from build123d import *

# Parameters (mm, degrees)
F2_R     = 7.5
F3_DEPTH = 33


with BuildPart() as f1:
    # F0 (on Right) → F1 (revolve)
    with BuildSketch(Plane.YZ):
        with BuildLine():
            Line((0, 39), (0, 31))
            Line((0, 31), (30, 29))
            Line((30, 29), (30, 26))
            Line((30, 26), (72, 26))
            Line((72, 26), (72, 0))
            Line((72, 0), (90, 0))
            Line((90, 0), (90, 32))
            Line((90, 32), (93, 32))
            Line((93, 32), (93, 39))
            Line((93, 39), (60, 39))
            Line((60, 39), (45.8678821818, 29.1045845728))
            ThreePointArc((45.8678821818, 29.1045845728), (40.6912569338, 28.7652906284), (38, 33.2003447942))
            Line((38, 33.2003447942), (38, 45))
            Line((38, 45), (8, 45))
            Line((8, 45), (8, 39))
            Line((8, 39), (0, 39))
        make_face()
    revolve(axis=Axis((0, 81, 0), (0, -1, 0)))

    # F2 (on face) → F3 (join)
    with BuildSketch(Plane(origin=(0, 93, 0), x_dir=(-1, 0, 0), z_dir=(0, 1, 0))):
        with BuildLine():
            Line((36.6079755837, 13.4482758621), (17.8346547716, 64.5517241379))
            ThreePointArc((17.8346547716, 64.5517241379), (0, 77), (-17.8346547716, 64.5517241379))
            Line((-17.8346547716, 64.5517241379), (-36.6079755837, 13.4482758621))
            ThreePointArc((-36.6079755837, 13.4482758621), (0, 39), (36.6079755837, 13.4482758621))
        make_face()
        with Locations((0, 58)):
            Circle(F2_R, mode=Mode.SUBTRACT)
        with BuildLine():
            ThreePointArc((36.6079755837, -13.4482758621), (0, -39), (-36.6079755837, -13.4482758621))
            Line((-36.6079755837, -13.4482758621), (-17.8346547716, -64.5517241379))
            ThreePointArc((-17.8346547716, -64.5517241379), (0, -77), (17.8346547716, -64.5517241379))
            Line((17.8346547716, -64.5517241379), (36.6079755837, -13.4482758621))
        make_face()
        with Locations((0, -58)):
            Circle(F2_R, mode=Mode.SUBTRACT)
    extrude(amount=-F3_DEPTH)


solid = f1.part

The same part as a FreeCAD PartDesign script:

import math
import FreeCAD as App
import Part
import Sketcher

V = App.Vector
Q = App.Units.Quantity

doc = App.newDocument("Part")
params = doc.addObject("Spreadsheet::Sheet", "Params")
for row, (alias, value) in enumerate([
    ("sketch1_radius", "5 mm"),
    ("sketch1_width", "42 mm"),
    ("sketch1_width2", "18 mm"),
    ("sketch1_width3", "3 mm"),
    ("sketch1_width4", "33 mm"),
    ("revolution_angle", "360 deg"),
    ("sketch2_diameter", "15 mm"),
    ("sketch2_radius", "19 mm"),
    ("sketch2_radius2", "39 mm"),
    ("pad1_length", "33 mm"),
], start=1):
    params.set(f"A{row}", alias)
    params.set(f"B{row}", "=" + value)
    params.setAlias(f"B{row}", alias)

body = doc.addObject("PartDesign::Body", "Body")

sketch1 = body.newObject("Sketcher::SketchObject", "Sketch")
sketch1.AttachmentSupport = (doc.getObject("YZ_Plane"), [""])
sketch1.MapMode = "FlatFace"
sketch1.addGeometry(Part.LineSegment(V(0, 39, 0), V(0, 31, 0)), False)
sketch1.addGeometry(Part.LineSegment(V(0, 31, 0), V(30, 29, 0)), False)
sketch1.addGeometry(Part.LineSegment(V(30, 29, 0), V(30, 26, 0)), False)
sketch1.addGeometry(Part.LineSegment(V(30, 26, 0), V(72, 26, 0)), False)
sketch1.addGeometry(Part.LineSegment(V(72, 26, 0), V(72, 0, 0)), False)
sketch1.addGeometry(Part.LineSegment(V(72, 0, 0), V(90, 0, 0)), False)
sketch1.addGeometry(Part.LineSegment(V(90, 0, 0), V(90, 32, 0)), False)
sketch1.addGeometry(Part.LineSegment(V(90, 32, 0), V(93, 32, 0)), False)
sketch1.addGeometry(Part.LineSegment(V(93, 32, 0), V(93, 39, 0)), False)
sketch1.addGeometry(Part.LineSegment(V(93, 39, 0), V(60, 39, 0)), False)
sketch1.addGeometry(Part.LineSegment(V(60, 39, 0), V(45.867882, 29.104585, 0)), False)
sketch1.addGeometry(Part.ArcOfCircle(Part.Circle(V(43, 33.200345, 0), V(0, 0, 1), 5), math.radians(180), math.radians(305)), False)
sketch1.addGeometry(Part.LineSegment(V(38, 33.200345, 0), V(38, 45, 0)), False)
sketch1.addGeometry(Part.LineSegment(V(38, 45, 0), V(8, 45, 0)), False)
sketch1.addGeometry(Part.LineSegment(V(8, 45, 0), V(8, 39, 0)), False)
sketch1.addGeometry(Part.LineSegment(V(8, 39, 0), V(0, 39, 0)), False)
sketch1.addConstraint(Sketcher.Constraint("Coincident", 0, 2, 1, 1))
sketch1.addConstraint(Sketcher.Constraint("Coincident", 1, 2, 2, 1))
sketch1.addConstraint(Sketcher.Constraint("Coincident", 2, 2, 3, 1))
sketch1.addConstraint(Sketcher.Constraint("Coincident", 3, 2, 4, 1))
sketch1.addConstraint(Sketcher.Constraint("Coincident", 4, 2, 5, 1))
sketch1.addConstraint(Sketcher.Constraint("Coincident", 5, 2, 6, 1))
sketch1.addConstraint(Sketcher.Constraint("Coincident", 6, 2, 7, 1))
sketch1.addConstraint(Sketcher.Constraint("Coincident", 7, 2, 8, 1))
sketch1.addConstraint(Sketcher.Constraint("Coincident", 8, 2, 9, 1))
sketch1.addConstraint(Sketcher.Constraint("Coincident", 9, 2, 10, 1))
sketch1.addConstraint(Sketcher.Constraint("Tangent", 10, 2, 11, 2))
sketch1.addConstraint(Sketcher.Constraint("Tangent", 11, 1, 12, 1))
sketch1.addConstraint(Sketcher.Constraint("Coincident", 12, 2, 13, 1))
sketch1.addConstraint(Sketcher.Constraint("Coincident", 13, 2, 14, 1))
sketch1.addConstraint(Sketcher.Constraint("Coincident", 14, 2, 15, 1))
sketch1.addConstraint(Sketcher.Constraint("Coincident", 15, 2, 0, 1))
sketch1.addConstraint(Sketcher.Constraint("Vertical", 0))
sketch1.addConstraint(Sketcher.Constraint("Vertical", 2))
sketch1.addConstraint(Sketcher.Constraint("Horizontal", 3))
sketch1.addConstraint(Sketcher.Constraint("Vertical", 4))
sketch1.addConstraint(Sketcher.Constraint("Horizontal", 5))
sketch1.addConstraint(Sketcher.Constraint("Vertical", 6))
sketch1.addConstraint(Sketcher.Constraint("Horizontal", 7))
sketch1.addConstraint(Sketcher.Constraint("Vertical", 8))
sketch1.addConstraint(Sketcher.Constraint("Horizontal", 9))
sketch1.addConstraint(Sketcher.Constraint("Vertical", 12))
sketch1.addConstraint(Sketcher.Constraint("Horizontal", 13))
sketch1.addConstraint(Sketcher.Constraint("Vertical", 14))
sketch1.addConstraint(Sketcher.Constraint("Horizontal", 15))
sketch1.addConstraint(Sketcher.Constraint("PointOnObject", 0, 2, -2))
sketch1.addConstraint(Sketcher.Constraint("PointOnObject", 4, 2, -1))
sketch1.addConstraint(Sketcher.Constraint("Horizontal", 9, 2, 14, 2))
sketch1.addConstraint(Sketcher.Constraint("Equal", 15, 0))
sketch1.addConstraint(Sketcher.Constraint("Equal", 7, 2))
sketch1.addConstraint(Sketcher.Constraint("Radius", 11, 5.0))
sketch1.addConstraint(Sketcher.Constraint("DistanceX", 3, 1, 3, 2, 42.0))
sketch1.addConstraint(Sketcher.Constraint("DistanceX", 5, 1, 5, 2, 18.0))
sketch1.addConstraint(Sketcher.Constraint("DistanceX", 7, 1, 7, 2, 3.0))
sketch1.addConstraint(Sketcher.Constraint("DistanceX", 9, 2, 9, 1, 33.0))
sketch1.addConstraint(Sketcher.Constraint("DistanceX", 13, 2, 13, 1, 30.0))
sketch1.addConstraint(Sketcher.Constraint("DistanceX", 15, 2, 15, 1, 8.0))
sketch1.addConstraint(Sketcher.Constraint("DistanceY", 4, 2, 4, 1, 26.0))
sketch1.addConstraint(Sketcher.Constraint("DistanceY", 6, 1, 6, 2, 32.0))
sketch1.addConstraint(Sketcher.Constraint("DistanceY", 8, 1, 8, 2, 7.0))
sketch1.addConstraint(Sketcher.Constraint("DistanceY", 14, 2, 14, 1, 6.0))
sketch1.addConstraint(Sketcher.Constraint("Angle", 10, Q("-145 deg")))
sketch1.addConstraint(Sketcher.Constraint("DistanceX", -1, 1, 1, 2, 30.0))
sketch1.setExpression("Constraints[34]", "Params.sketch1_radius")
sketch1.setExpression("Constraints[35]", "Params.sketch1_width")
sketch1.setExpression("Constraints[36]", "Params.sketch1_width2")
sketch1.setExpression("Constraints[37]", "Params.sketch1_width3")
sketch1.setExpression("Constraints[38]", "Params.sketch1_width4")
revolution = body.newObject("PartDesign::Revolution", "Revolution")
revolution.Profile = sketch1
revolution.ReferenceAxis = (sketch1, ["H_Axis"])
revolution.setExpression("Angle", "Params.revolution_angle")

sketch2 = body.newObject("Sketcher::SketchObject", "Sketch001")
sketch2.AttachmentSupport = (doc.getObject("XZ_Plane"), [""])
sketch2.MapMode = "FlatFace"
sketch2.AttachmentOffset = App.Placement(V(0, 0, -93), App.Rotation())
sketch2.addGeometry(Part.LineSegment(V(-36.607976, 13.448276, 0), V(-17.834655, 64.551724, 0)), False)
sketch2.addGeometry(Part.ArcOfCircle(Part.Circle(V(0, 58, 0), V(0, 0, 1), 19), math.radians(20.171271), math.radians(159.828729)), False)
sketch2.addGeometry(Part.LineSegment(V(17.834655, 64.551724, 0), V(36.607976, 13.448276, 0)), False)
sketch2.addGeometry(Part.ArcOfCircle(Part.Circle(V(0, 0, 0), V(0, 0, 1), 39), math.radians(20.171271), math.radians(159.828729)), False)
sketch2.addGeometry(Part.Circle(V(0, 58, 0), V(0, 0, 1), 7.5), False)
sketch2.addGeometry(Part.ArcOfCircle(Part.Circle(V(0, 0, 0), V(0, 0, 1), 39), math.radians(-159.828729), math.radians(-20.171271)), False)
sketch2.addGeometry(Part.LineSegment(V(36.607976, -13.448276, 0), V(17.834655, -64.551724, 0)), False)
sketch2.addGeometry(Part.ArcOfCircle(Part.Circle(V(0, -58, 0), V(0, 0, 1), 19), math.radians(-159.828729), math.radians(-20.171271)), False)
sketch2.addGeometry(Part.LineSegment(V(-17.834655, -64.551724, 0), V(-36.607976, -13.448276, 0)), False)
sketch2.addGeometry(Part.Circle(V(0, -58, 0), V(0, 0, 1), 7.5), False)
sketch2.addConstraint(Sketcher.Constraint("Tangent", 0, 2, 1, 2))
sketch2.addConstraint(Sketcher.Constraint("Tangent", 1, 1, 2, 1))
sketch2.addConstraint(Sketcher.Constraint("Tangent", 2, 2, 3, 1))
sketch2.addConstraint(Sketcher.Constraint("Tangent", 3, 2, 0, 1))
sketch2.addConstraint(Sketcher.Constraint("Tangent", 5, 2, 6, 1))
sketch2.addConstraint(Sketcher.Constraint("Tangent", 6, 2, 7, 2))
sketch2.addConstraint(Sketcher.Constraint("Tangent", 7, 1, 8, 1))
sketch2.addConstraint(Sketcher.Constraint("Tangent", 8, 2, 5, 1))
sketch2.addConstraint(Sketcher.Constraint("Coincident", 3, 3, -1, 1))
sketch2.addConstraint(Sketcher.Constraint("Coincident", 5, 3, -1, 1))
sketch2.addConstraint(Sketcher.Constraint("Coincident", 4, 3, 1, 3))
sketch2.addConstraint(Sketcher.Constraint("Coincident", 9, 3, 7, 3))
sketch2.addConstraint(Sketcher.Constraint("Equal", 3, 5))
sketch2.addConstraint(Sketcher.Constraint("Equal", 1, 7))
sketch2.addConstraint(Sketcher.Constraint("Equal", 4, 9))
sketch2.addConstraint(Sketcher.Constraint("Symmetric", 1, 3, 7, 3, -1, 1))
sketch2.addConstraint(Sketcher.Constraint("PointOnObject", 1, 3, -2))
sketch2.addConstraint(Sketcher.Constraint("Diameter", 4, 15.0))
sketch2.addConstraint(Sketcher.Constraint("Radius", 1, 19.0))
sketch2.addConstraint(Sketcher.Constraint("Radius", 3, 39.0))
sketch2.addConstraint(Sketcher.Constraint("DistanceY", -1, 1, 1, 3, 58.0))
sketch2.setExpression("Constraints[17]", "Params.sketch2_diameter")
sketch2.setExpression("Constraints[18]", "Params.sketch2_radius")
sketch2.setExpression("Constraints[19]", "Params.sketch2_radius2")
pad1 = body.newObject("PartDesign::Pad", "Pad")
pad1.Profile = sketch2
pad1.setExpression("Length", "Params.pad1_length")

doc.recompute()
